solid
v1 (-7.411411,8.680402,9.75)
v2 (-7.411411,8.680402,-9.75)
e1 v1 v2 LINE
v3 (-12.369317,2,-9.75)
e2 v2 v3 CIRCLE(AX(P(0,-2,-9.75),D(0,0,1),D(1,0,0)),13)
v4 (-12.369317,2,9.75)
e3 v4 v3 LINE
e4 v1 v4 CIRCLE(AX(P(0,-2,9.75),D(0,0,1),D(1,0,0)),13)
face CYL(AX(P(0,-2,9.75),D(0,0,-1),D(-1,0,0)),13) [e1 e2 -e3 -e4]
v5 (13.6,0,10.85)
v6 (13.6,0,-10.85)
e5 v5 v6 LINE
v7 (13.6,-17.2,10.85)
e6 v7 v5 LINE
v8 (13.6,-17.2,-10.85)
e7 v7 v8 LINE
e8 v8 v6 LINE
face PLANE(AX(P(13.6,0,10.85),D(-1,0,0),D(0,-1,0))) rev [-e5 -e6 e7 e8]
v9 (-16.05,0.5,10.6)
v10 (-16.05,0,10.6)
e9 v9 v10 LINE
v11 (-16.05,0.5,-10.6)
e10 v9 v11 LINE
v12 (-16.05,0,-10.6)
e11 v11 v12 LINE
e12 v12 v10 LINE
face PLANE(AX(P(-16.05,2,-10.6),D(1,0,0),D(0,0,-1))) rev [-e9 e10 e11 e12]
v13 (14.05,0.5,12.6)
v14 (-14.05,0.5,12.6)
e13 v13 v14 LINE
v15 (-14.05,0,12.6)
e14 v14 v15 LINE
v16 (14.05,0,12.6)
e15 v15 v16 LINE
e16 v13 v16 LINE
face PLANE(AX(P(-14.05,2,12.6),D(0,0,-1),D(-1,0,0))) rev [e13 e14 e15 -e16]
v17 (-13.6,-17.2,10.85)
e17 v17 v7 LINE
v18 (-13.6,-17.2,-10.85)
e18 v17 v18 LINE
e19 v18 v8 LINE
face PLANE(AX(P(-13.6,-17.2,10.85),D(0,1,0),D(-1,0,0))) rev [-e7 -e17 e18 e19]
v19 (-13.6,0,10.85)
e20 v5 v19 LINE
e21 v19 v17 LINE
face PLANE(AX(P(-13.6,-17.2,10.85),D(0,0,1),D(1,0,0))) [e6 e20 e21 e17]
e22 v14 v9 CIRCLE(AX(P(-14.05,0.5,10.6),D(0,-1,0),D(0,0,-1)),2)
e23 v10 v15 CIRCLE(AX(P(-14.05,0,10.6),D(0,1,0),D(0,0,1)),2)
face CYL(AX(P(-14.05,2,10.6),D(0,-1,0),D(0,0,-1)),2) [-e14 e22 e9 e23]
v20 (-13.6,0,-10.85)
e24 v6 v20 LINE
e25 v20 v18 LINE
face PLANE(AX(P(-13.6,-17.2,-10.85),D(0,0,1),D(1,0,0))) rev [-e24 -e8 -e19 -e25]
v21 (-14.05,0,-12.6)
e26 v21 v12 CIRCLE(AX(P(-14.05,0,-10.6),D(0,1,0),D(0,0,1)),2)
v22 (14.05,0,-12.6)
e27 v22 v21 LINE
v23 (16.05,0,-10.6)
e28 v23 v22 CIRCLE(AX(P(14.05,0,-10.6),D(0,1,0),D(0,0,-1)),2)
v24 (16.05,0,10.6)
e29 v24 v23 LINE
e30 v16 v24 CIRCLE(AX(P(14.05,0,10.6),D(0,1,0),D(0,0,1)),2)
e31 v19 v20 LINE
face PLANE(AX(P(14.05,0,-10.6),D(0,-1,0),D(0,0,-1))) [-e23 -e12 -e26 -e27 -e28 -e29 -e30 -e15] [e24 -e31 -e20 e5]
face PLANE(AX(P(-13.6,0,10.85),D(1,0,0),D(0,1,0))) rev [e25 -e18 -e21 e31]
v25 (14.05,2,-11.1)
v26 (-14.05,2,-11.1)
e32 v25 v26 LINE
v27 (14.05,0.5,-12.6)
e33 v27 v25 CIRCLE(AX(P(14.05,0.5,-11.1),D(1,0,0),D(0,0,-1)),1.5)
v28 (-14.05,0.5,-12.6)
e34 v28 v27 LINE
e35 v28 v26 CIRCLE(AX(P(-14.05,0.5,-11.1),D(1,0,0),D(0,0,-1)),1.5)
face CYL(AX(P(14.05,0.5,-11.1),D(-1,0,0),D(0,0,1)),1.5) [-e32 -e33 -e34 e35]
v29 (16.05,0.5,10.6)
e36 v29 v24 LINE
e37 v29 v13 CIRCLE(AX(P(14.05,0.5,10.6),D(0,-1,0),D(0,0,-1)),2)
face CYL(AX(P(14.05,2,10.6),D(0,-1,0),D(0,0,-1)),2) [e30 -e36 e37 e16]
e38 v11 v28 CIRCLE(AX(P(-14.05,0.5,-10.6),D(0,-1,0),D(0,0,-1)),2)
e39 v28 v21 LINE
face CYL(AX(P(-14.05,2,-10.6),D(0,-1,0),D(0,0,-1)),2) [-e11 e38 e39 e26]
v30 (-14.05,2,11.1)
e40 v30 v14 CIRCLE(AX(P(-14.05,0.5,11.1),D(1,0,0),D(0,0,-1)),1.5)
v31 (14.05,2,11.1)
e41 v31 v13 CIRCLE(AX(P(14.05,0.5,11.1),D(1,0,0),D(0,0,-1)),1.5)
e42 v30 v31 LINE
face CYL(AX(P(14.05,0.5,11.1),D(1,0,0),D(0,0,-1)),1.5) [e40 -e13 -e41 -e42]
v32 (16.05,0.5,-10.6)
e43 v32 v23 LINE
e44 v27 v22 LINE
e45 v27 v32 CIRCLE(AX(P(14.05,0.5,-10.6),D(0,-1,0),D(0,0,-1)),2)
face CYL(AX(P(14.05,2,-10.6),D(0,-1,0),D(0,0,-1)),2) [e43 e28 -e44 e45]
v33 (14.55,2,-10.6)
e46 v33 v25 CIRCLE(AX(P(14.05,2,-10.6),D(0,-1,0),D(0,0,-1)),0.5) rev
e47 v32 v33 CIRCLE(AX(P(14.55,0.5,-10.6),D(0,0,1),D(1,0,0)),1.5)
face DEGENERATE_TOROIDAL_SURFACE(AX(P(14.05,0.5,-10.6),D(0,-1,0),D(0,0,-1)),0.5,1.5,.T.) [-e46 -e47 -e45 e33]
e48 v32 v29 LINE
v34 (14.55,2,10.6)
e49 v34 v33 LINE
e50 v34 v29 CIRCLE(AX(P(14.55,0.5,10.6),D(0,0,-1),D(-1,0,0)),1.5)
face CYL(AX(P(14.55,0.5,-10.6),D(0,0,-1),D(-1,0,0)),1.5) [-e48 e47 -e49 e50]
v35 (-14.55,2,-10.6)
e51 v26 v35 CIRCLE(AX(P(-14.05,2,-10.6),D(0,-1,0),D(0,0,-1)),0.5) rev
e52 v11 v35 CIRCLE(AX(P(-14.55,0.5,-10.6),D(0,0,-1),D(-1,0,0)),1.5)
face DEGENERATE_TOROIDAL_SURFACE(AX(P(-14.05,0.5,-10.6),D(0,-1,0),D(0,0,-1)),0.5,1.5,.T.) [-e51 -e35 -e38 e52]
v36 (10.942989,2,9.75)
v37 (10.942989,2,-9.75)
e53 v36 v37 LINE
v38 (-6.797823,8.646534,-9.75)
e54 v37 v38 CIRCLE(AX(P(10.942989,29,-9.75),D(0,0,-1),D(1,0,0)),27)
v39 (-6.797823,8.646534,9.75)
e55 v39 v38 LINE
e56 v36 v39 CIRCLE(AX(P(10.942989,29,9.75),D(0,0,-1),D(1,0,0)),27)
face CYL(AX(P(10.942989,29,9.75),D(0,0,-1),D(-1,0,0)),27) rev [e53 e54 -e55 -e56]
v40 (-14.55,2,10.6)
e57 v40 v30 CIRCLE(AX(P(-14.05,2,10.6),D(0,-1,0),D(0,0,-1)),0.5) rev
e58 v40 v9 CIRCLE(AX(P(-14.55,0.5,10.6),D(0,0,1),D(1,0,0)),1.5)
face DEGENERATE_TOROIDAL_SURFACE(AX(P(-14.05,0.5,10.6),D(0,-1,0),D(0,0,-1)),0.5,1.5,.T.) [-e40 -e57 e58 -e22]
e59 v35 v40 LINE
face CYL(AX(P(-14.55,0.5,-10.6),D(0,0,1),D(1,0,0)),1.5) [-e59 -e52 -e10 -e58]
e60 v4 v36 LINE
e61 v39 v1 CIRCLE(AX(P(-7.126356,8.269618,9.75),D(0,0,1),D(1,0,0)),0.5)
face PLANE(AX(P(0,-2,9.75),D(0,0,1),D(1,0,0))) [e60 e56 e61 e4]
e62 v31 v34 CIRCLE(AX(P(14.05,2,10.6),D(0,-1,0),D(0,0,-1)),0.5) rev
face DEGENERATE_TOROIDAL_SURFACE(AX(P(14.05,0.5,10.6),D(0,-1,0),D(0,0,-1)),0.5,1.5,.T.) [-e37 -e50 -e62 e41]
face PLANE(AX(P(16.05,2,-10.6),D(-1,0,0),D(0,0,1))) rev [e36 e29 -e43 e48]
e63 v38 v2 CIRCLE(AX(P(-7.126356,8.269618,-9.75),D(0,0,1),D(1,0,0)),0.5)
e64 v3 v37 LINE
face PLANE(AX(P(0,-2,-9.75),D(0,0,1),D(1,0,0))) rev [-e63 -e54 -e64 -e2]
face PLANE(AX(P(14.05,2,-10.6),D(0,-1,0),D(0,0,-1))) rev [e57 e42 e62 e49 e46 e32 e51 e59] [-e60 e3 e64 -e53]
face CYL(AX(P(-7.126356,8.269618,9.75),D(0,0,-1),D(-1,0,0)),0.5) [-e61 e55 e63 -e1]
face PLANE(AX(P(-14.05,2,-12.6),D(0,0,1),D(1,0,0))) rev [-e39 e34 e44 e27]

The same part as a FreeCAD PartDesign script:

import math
import FreeCAD as App
import Part
import Sketcher

V = App.Vector


def edges_at(feature, points):
    """Names of the edges that pass closest to the given points."""
    edges = feature.Shape.Edges
    near = lambda p: min(range(len(edges)), key=lambda i: edges[i].distToShape(Part.Vertex(*p))[0])
    return sorted({f"Edge{near(p) + 1}" for p in points})

doc = App.newDocument("Part")
params = doc.addObject("Spreadsheet::Sheet", "Params")
for row, (alias, value) in enumerate([
    ("sketch1_radius", "2 mm"),
    ("sketch1_width", "28.1 mm"),
    ("sketch1_height", "21.2 mm"),
    ("pad1_length", "2 mm"),
    ("fillet_radius", "1.5 mm"),
    ("sketch2_radius", "27 mm"),
    ("sketch2_radius2", "13 mm"),
    ("sketch2_radius3", "0.5 mm"),
    ("pad2_length", "19.5 mm"),
    ("sketch3_width", "27.2 mm"),
    ("sketch3_height", "17.2 mm"),
    ("pad3_length", "21.7 mm"),
], start=1):
    params.set(f"A{row}", alias)
    params.set(f"B{row}", "=" + value)
    params.setAlias(f"B{row}", alias)

body = doc.addObject("PartDesign::Body", "Body")

# Sketch on XZ plane
sketch1 = body.newObject("Sketcher::SketchObject", "Sketch")
sketch1.AttachmentSupport = (doc.getObject("XZ_Plane"), [""])
sketch1.MapMode = "FlatFace"
sketch1.addGeometry(Part.LineSegment(V(14.05, -12.6, 0), V(-14.05, -12.6, 0)), False)
sketch1.addGeometry(Part.ArcOfCircle(Part.Circle(V(-14.05, -10.6, 0), V(0, 0, 1), 2), math.radians(-180), math.radians(-90)), False)
sketch1.addGeometry(Part.LineSegment(V(-16.05, -10.6, 0), V(-16.05, 10.6, 0)), False)
sketch1.addGeometry(Part.ArcOfCircle(Part.Circle(V(-14.05, 10.6, 0), V(0, 0, 1), 2), math.radians(90), math.radians(180)), False)
sketch1.addGeometry(Part.LineSegment(V(-14.05, 12.6, 0), V(14.05, 12.6, 0)), False)
sketch1.addGeometry(Part.ArcOfCircle(Part.Circle(V(14.05, 10.6, 0), V(0, 0, 1), 2), math.radians(0), math.radians(90)), False)
sketch1.addGeometry(Part.LineSegment(V(16.05, 10.6, 0), V(16.05, -10.6, 0)), False)
sketch1.addGeometry(Part.ArcOfCircle(Part.Circle(V(14.05, -10.6, 0), V(0, 0, 1), 2), math.radians(-90), math.radians(0)), False)
sketch1.addConstraint(Sketcher.Constraint("Tangent", 0, 2, 1, 2))
sketch1.addConstraint(Sketcher.Constraint("Tangent", 1, 1, 2, 1))
sketch1.addConstraint(Sketcher.Constraint("Tangent", 2, 2, 3, 2))
sketch1.addConstraint(Sketcher.Constraint("Tangent", 3, 1, 4, 1))
sketch1.addConstraint(Sketcher.Constraint("Tangent", 4, 2, 5, 2))
sketch1.addConstraint(Sketcher.Constraint("Tangent", 5, 1, 6, 1))
sketch1.addConstraint(Sketcher.Constraint("Tangent", 6, 2, 7, 2))
sketch1.addConstraint(Sketcher.Constraint("Tangent", 7, 1, 0, 1))
sketch1.addConstraint(Sketcher.Constraint("Horizontal", 0))
sketch1.addConstraint(Sketcher.Constraint("Vertical", 2))
sketch1.addConstraint(Sketcher.Constraint("Horizontal", 4))
sketch1.addConstraint(Sketcher.Constraint("Vertical", 6))
sketch1.addConstraint(Sketcher.Constraint("Equal", 1, 3))
sketch1.addConstraint(Sketcher.Constraint("Equal", 3, 5))
sketch1.addConstraint(Sketcher.Constraint("Equal", 5, 7))
sketch1.addConstraint(Sketcher.Constraint("Symmetric", 1, 3, 5, 3, -1, 1))
sketch1.addConstraint(Sketcher.Constraint("Radius", 1, 2.0))
sketch1.addConstraint(Sketcher.Constraint("DistanceX", 0, 2, 0, 1, 28.1))
sketch1.addConstraint(Sketcher.Constraint("DistanceY", 2, 1, 2, 2, 21.2))
sketch1.setExpression("Constraints[16]", "Params.sketch1_radius")
sketch1.setExpression("Constraints[17]", "Params.sketch1_width")
sketch1.setExpression("Constraints[18]", "Params.sketch1_height")
pad1 = body.newObject("PartDesign::Pad", "Pad")
pad1.Profile = sketch1
pad1.setExpression("Length", "Params.pad1_length")
pad1.Reversed = True
doc.recompute()

fillet = body.newObject("PartDesign::Fillet", "Fillet")
fillet.Base = (pad1, edges_at(pad1, [
    (-15.464, 2, -12.014),
    (-16.05, 2, 0),
    (-15.464, 2, 12.014),
    (0, 2, 12.6),
    (15.464, 2, 12.014),
    (16.05, 2, 0),
    (15.464, 2, -12.014),
    (0, 2, -12.6),
]))
fillet.setExpression("Radius", "Params.fillet_radius")

# Sketch on XY plane
sketch2 = body.newObject("Sketcher::SketchObject", "Sketch001")
sketch2.AttachmentSupport = (doc.getObject("XY_Plane"), [""])
sketch2.MapMode = "FlatFace"
sketch2.addGeometry(Part.LineSegment(V(-12.369317, 2, 0), V(10.942989, 2, 0)), False)
sketch2.addGeometry(Part.ArcOfCircle(Part.Circle(V(10.942989, 29, 0), V(0, 0, 1), 27), math.radians(-131.076575), math.radians(-90)), False)
sketch2.addGeometry(Part.ArcOfCircle(Part.Circle(V(-7.126356, 8.269618, 0), V(0, 0, 1), 0.5), math.radians(48.923425), math.radians(124.757793)), False)
sketch2.addGeometry(Part.ArcOfCircle(Part.Circle(V(0, -2, 0), V(0, 0, 1), 13), math.radians(124.757793), math.radians(162.079787)), False)
sketch2.addConstraint(Sketcher.Constraint("Tangent", 0, 2, 1, 2))
sketch2.addConstraint(Sketcher.Constraint("Tangent", 1, 1, 2, 1))
sketch2.addConstraint(Sketcher.Constraint("Tangent", 2, 2, 3, 1))
sketch2.addConstraint(Sketcher.Constraint("Coincident", 3, 2, 0, 1))
sketch2.addConstraint(Sketcher.Constraint("Horizontal", 0))
sketch2.addConstraint(Sketcher.Constraint("PointOnObject", 3, 3, -2))
sketch2.addConstraint(Sketcher.Constraint("Radius", 1, 27.0))
sketch2.addConstraint(Sketcher.Constraint("Radius", 3, 13.0))
sketch2.addConstraint(Sketcher.Constraint("Radius", 2, 0.5))
sketch2.addConstraint(Sketcher.Constraint("DistanceY", -1, 1, 1, 3, 29.0))
sketch2.addConstraint(Sketcher.Constraint("DistanceY", 3, 3, -1, 1, 2.0))
sketch2.addConstraint(Sketcher.Constraint("DistanceX", 2, 2, 0, 2, 18.3544))
sketch2.setExpression("Constraints[6]", "Params.sketch2_radius")
sketch2.setExpression("Constraints[7]", "Params.sketch2_radius2")
sketch2.setExpression("Constraints[8]", "Params.sketch2_radius3")
pad2 = body.newObject("PartDesign::Pad", "Pad001")
pad2.Profile = sketch2
pad2.setExpression("Length", "Params.pad2_length")
pad2.Midplane = True

# Sketch on XY plane
sketch3 = body.newObject("Sketcher::SketchObject", "Sketch002")
sketch3.AttachmentSupport = (doc.getObject("XY_Plane"), [""])
sketch3.MapMode = "FlatFace"
sketch3.addGeometry(Part.LineSegment(V(-13.6, 0, 0), V(-13.6, -17.2, 0)), False)
sketch3.addGeometry(Part.LineSegment(V(-13.6, -17.2, 0), V(13.6, -17.2, 0)), False)
sketch3.addGeometry(Part.LineSegment(V(13.6, -17.2, 0), V(13.6, 0, 0)), False)
sketch3.addGeometry(Part.LineSegment(V(13.6, 0, 0), V(-13.6, 0, 0)), False)
sketch3.addConstraint(Sketcher.Constraint("Coincident", 0, 2, 1, 1))
sketch3.addConstraint(Sketcher.Constraint("Coincident", 1, 2, 2, 1))
sketch3.addConstraint(Sketcher.Constraint("Coincident", 2, 2, 3, 1))
sketch3.addConstraint(Sketcher.Constraint("Coincident", 3, 2, 0, 1))
sketch3.addConstraint(Sketcher.Constraint("Vertical", 0))
sketch3.addConstraint(Sketcher.Constraint("Horizontal", 1))
sketch3.addConstraint(Sketcher.Constraint("Vertical", 2))
sketch3.addConstraint(Sketcher.Constraint("Horizontal", 3))
sketch3.addConstraint(Sketcher.Constraint("Symmetric", 2, 2, 3, 2, -1, 1))
sketch3.addConstraint(Sketcher.Constraint("DistanceX", 1, 1, 1, 2, 27.2))
sketch3.addConstraint(Sketcher.Constraint("DistanceY", 0, 2, 0, 1, 17.2))
sketch3.setExpression("Constraints[9]", "Params.sketch3_width")
sketch3.setExpression("Constraints[10]", "Params.sketch3_height")
pad3 = body.newObject("PartDesign::Pad", "Pad002")
pad3.Profile = sketch3
pad3.setExpression("Length", "Params.pad3_length")
pad3.Midplane = True

doc.recompute()
